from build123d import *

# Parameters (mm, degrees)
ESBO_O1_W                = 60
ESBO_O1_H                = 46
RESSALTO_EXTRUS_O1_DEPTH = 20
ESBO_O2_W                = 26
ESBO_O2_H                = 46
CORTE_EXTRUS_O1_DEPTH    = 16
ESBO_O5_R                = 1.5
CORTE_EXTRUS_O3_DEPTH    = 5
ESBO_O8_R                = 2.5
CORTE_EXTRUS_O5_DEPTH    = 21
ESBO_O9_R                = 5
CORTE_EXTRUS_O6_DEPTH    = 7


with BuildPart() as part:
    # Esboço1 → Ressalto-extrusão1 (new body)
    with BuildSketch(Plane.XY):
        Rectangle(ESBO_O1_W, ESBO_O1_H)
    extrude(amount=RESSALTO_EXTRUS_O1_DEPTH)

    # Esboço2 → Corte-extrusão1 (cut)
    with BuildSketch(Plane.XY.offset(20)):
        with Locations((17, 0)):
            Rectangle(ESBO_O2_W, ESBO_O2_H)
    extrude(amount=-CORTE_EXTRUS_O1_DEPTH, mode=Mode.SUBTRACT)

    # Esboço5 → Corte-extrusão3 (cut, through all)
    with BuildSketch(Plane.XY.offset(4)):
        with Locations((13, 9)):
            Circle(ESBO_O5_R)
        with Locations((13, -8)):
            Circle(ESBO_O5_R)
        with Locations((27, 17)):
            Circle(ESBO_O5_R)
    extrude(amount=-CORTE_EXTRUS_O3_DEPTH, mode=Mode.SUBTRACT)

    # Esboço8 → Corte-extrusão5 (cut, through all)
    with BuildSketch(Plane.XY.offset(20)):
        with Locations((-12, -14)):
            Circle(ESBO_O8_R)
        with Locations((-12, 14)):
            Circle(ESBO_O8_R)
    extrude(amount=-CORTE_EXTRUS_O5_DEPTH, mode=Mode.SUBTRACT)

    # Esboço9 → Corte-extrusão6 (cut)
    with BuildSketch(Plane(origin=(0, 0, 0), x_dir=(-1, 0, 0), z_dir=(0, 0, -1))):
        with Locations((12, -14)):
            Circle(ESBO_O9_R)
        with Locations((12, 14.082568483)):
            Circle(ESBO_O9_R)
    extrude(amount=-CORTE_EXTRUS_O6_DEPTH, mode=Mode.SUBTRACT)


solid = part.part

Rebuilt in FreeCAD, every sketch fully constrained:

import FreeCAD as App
import Part
import Sketcher

doc = App.newDocument("Part")
body = doc.addObject("PartDesign::Body", "Body")

# Sketch on XY plane
sketch1 = doc.addObject("Sketcher::SketchObject", "Sketch")
body.addObject(sketch1)
sketch1.AttachmentSupport = (doc.XY_Plane, [""])
sketch1.MapMode = "FlatFace"
sketch1.addGeometry([
    Part.LineSegment(App.Vector(-30, 23, 0), App.Vector(-30, -23, 0)),
    Part.LineSegment(App.Vector(-30, -23, 0), App.Vector(30, -23, 0)),
    Part.LineSegment(App.Vector(30, -23, 0), App.Vector(30, 23, 0)),
    Part.LineSegment(App.Vector(30, 23, 0), App.Vector(-30, 23, 0)),
], False)
sketch1.addConstraint([
    Sketcher.Constraint("Coincident", 0, 2, 1, 1),
    Sketcher.Constraint("Coincident", 1, 2, 2, 1),
    Sketcher.Constraint("Coincident", 2, 2, 3, 1),
    Sketcher.Constraint("Coincident", 3, 2, 0, 1),
    Sketcher.Constraint("Vertical", 0),
    Sketcher.Constraint("Horizontal", 1),
    Sketcher.Constraint("Vertical", 2),
    Sketcher.Constraint("Horizontal", 3),
    Sketcher.Constraint("Symmetric", 0, 2, 2, 2, -1, 1),
    Sketcher.Constraint("DistanceX", 1, 1, 1, 2, 60.0),
    Sketcher.Constraint("DistanceY", 0, 2, 0, 1, 46.0),
])
pad1 = doc.addObject("PartDesign::Pad", "Pad")
body.addObject(pad1)
pad1.Profile = sketch1
pad1.Length = 20

# Sketch on XY plane
sketch2 = doc.addObject("Sketcher::SketchObject", "Sketch001")
body.addObject(sketch2)
sketch2.AttachmentSupport = (doc.XY_Plane, [""])
sketch2.MapMode = "FlatFace"
sketch2.AttachmentOffset = App.Placement(App.Vector(0, 0, 20), App.Rotation())
sketch2.addGeometry([
    Part.LineSegment(App.Vector(4, 23, 0), App.Vector(4, -23, 0)),
    Part.LineSegment(App.Vector(4, -23, 0), App.Vector(30, -23, 0)),
    Part.LineSegment(App.Vector(30, -23, 0), App.Vector(30, 23, 0)),
    Part.LineSegment(App.Vector(30, 23, 0), App.Vector(4, 23, 0)),
], False)
sketch2.addConstraint([
    Sketcher.Constraint("Coincident", 0, 2, 1, 1),
    Sketcher.Constraint("Coincident", 1, 2, 2, 1),
    Sketcher.Constraint("Coincident", 2, 2, 3, 1),
    Sketcher.Constraint("Coincident", 3, 2, 0, 1),
    Sketcher.Constraint("Vertical", 0),
    Sketcher.Constraint("Horizontal", 1),
    Sketcher.Constraint("Vertical", 2),
    Sketcher.Constraint("Horizontal", 3),
    Sketcher.Constraint("DistanceX", 1, 1, 1, 2, 26.0),
    Sketcher.Constraint("DistanceY", 0, 2, 0, 1, 46.0),
    Sketcher.Constraint("DistanceX", -1, 1, 0, 2, 4.0),
    Sketcher.Constraint("DistanceY", 0, 2, -1, 1, 23.0),
])
pocket1 = doc.addObject("PartDesign::Pocket", "Pocket")
body.addObject(pocket1)
pocket1.Profile = sketch2
pocket1.Length = 16

# Sketch on XY plane
sketch3 = doc.addObject("Sketcher::SketchObject", "Sketch002")
body.addObject(sketch3)
sketch3.AttachmentSupport = (doc.XY_Plane, [""])
sketch3.MapMode = "FlatFace"
sketch3.AttachmentOffset = App.Placement(App.Vector(0, 0, 4), App.Rotation())
sketch3.addGeometry([
    Part.Circle(App.Vector(13, 9, 0), App.Vector(0, 0, 1), 1.5),
    Part.Circle(App.Vector(13, -8, 0), App.Vector(0, 0, 1), 1.5),
    Part.Circle(App.Vector(27, 17, 0), App.Vector(0, 0, 1), 1.5),
], False)
sketch3.addConstraint([
    Sketcher.Constraint("Equal", 0, 1),
    Sketcher.Constraint("Equal", 1, 2),
    Sketcher.Constraint("Vertical", 0, 3, 1, 3),
    Sketcher.Constraint("Diameter", 0, 3.0),
    Sketcher.Constraint("DistanceX", -1, 1, 0, 3, 13.0),
    Sketcher.Constraint("DistanceY", -1, 1, 0, 3, 9.0),
    Sketcher.Constraint("DistanceY", 1, 3, -1, 1, 8.0),
    Sketcher.Constraint("DistanceX", -1, 1, 2, 3, 27.0),
    Sketcher.Constraint("DistanceY", -1, 1, 2, 3, 17.0),
])
pocket2 = doc.addObject("PartDesign::Pocket", "Pocket001")
body.addObject(pocket2)
pocket2.Profile = sketch3
pocket2.Type = "ThroughAll"

# Sketch on XY plane
sketch4 = doc.addObject("Sketcher::SketchObject", "Sketch003")
body.addObject(sketch4)
sketch4.AttachmentSupport = (doc.XY_Plane, [""])
sketch4.MapMode = "FlatFace"
sketch4.AttachmentOffset = App.Placement(App.Vector(0, 0, 20), App.Rotation())
sketch4.addGeometry([
    Part.Circle(App.Vector(-12, -14, 0), App.Vector(0, 0, 1), 2.5),
    Part.Circle(App.Vector(-12, 14, 0), App.Vector(0, 0, 1), 2.5),
], False)
sketch4.addConstraint([
    Sketcher.Constraint("Equal", 0, 1),
    Sketcher.Constraint("Symmetric", 0, 3, 1, 3, -1),
    Sketcher.Constraint("Diameter", 0, 5.0),
    Sketcher.Constraint("DistanceX", 0, 3, -1, 1, 12.0),
    Sketcher.Constraint("DistanceY", 0, 3, -1, 1, 14.0),
])
pocket3 = doc.addObject("PartDesign::Pocket", "Pocket002")
body.addObject(pocket3)
pocket3.Profile = sketch4
pocket3.Type = "ThroughAll"

# Sketch on XY plane
sketch5 = doc.addObject("Sketcher::SketchObject", "Sketch004")
body.addObject(sketch5)
sketch5.AttachmentSupport = (doc.XY_Plane, [""])
sketch5.MapMode = "FlatFace"
sketch5.addGeometry([
    Part.Circle(App.Vector(-12, -14, 0), App.Vector(0, 0, 1), 5),
    Part.Circle(App.Vector(-12, 14, 0), App.Vector(0, 0, 1), 5),
], False)
sketch5.addConstraint([
    Sketcher.Constraint("Equal", 0, 1),
    Sketcher.Constraint("Vertical", 0, 3, 1, 3),
    Sketcher.Constraint("Diameter", 0, 10.0),
    Sketcher.Constraint("DistanceX", 0, 3, -1, 1, 12.0),
    Sketcher.Constraint("DistanceY", 0, 3, -1, 1, 14.0),
    Sketcher.Constraint("DistanceY", -1, 1, 1, 3, 14.082568),
])
pocket4 = doc.addObject("PartDesign::Pocket", "Pocket003")
body.addObject(pocket4)
pocket4.Profile = sketch5
pocket4.Length = 7
pocket4.Reversed = True

doc.recompute()
